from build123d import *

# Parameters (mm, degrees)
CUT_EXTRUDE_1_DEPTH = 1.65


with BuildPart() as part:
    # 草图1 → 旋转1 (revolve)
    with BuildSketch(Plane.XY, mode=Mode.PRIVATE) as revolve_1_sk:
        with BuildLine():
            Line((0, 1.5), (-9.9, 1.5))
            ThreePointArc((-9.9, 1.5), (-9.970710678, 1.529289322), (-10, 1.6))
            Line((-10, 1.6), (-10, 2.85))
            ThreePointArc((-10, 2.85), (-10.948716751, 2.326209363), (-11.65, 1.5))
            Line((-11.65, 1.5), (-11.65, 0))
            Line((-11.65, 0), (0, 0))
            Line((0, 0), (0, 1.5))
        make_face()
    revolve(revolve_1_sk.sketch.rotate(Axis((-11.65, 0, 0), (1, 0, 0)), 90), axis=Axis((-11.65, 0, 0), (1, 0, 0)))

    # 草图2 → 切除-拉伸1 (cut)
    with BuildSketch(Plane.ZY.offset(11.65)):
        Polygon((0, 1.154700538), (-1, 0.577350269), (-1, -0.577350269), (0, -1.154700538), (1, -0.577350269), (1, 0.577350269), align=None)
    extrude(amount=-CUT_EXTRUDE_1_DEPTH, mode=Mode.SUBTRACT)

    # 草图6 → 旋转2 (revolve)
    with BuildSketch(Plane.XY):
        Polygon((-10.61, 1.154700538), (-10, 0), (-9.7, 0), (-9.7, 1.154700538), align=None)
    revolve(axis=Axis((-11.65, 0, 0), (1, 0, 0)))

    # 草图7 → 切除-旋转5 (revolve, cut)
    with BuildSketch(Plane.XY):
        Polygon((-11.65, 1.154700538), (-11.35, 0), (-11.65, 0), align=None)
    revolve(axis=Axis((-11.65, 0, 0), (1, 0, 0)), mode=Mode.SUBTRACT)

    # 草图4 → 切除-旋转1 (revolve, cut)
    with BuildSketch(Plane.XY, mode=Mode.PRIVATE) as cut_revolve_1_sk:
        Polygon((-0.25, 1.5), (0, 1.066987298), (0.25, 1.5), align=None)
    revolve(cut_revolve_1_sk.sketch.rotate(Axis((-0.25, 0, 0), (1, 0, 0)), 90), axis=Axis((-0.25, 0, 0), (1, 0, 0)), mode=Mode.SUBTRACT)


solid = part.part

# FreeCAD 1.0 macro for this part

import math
import FreeCAD as App
import Part
import Sketcher
Q = App.Units.Quantity

doc = App.newDocument("Part")
params = doc.addObject("Spreadsheet::Sheet", "Params")
for row, (alias, value) in enumerate([
    ("sketch1_radius", "0.1 mm"),
    ("sketch1_width", "9.9 mm"),
    ("sketch1_height", "1.5 mm"),
    ("sketch1_width2", "11.65 mm"),
    ("sketch1_height2", "1.25 mm"),
    ("revolution_angle", "360 deg"),
    ("pocket1_length", "1.65 mm"),
    ("sketch3_width", "0.3 mm"),
    ("sketch3_width2", "0.91 mm"),
    ("revolution2_angle", "360 deg"),
    ("sketch4_width", "0.3 mm"),
    ("groove_angle", "360 deg"),
    ("sketch5_width", "0.5 mm"),
    ("groove2_angle", "360 deg"),
], start=1):
    params.set(f"A{row}", alias)
    params.set(f"B{row}", "=" + value)
    params.setAlias(f"B{row}", alias)

body = doc.addObject("PartDesign::Body", "Body")

sketch1 = doc.addObject("Sketcher::SketchObject", "Sketch")
body.addObject(sketch1)
sketch1.AttachmentSupport = (doc.XY_Plane, [""])
sketch1.MapMode = "FlatFace"
sketch1.addGeometry([
    Part.LineSegment(App.Vector(0, 1.5, 0), App.Vector(-9.9, 1.5, 0)),
    Part.ArcOfCircle(Part.Circle(App.Vector(-9.9, 1.6, 0), App.Vector(0, 0, 1), 0.1), math.radians(180), math.radians(270)),
    Part.LineSegment(App.Vector(-10, 1.6, 0), App.Vector(-10, 2.85, 0)),
    Part.ArcOfCircle(Part.Circle(App.Vector(-9.05, 0, 0), App.Vector(0, 0, 1), 3.01), math.radians(109), math.radians(150)),
    Part.LineSegment(App.Vector(-11.65, 1.5, 0), App.Vector(-11.65, 0, 0)),
    Part.LineSegment(App.Vector(-11.65, 0, 0), App.Vector(0, 0, 0)),
    Part.LineSegment(App.Vector(0, 0, 0), App.Vector(0, 1.5, 0)),
], False)
sketch1.addConstraint([
    Sketcher.Constraint("Tangent", 0, 2, 1, 2),
    Sketcher.Constraint("Tangent", 1, 1, 2, 1),
    Sketcher.Constraint("Coincident", 2, 2, 3, 1),
    Sketcher.Constraint("Coincident", 3, 2, 4, 1),
    Sketcher.Constraint("Coincident", 4, 2, 5, 1),
    Sketcher.Constraint("Coincident", 5, 2, 6, 1),
    Sketcher.Constraint("Coincident", 6, 2, 0, 1),
    Sketcher.Constraint("Horizontal", 0),
    Sketcher.Constraint("Vertical", 2),
    Sketcher.Constraint("Vertical", 4),
    Sketcher.Constraint("Horizontal", 5),
    Sketcher.Constraint("Vertical", 6),
    Sketcher.Constraint("Coincident", 5, 2, -1, 1),
    Sketcher.Constraint("PointOnObject", 3, 3, -1),
    Sketcher.Constraint("Horizontal", 0, 2, 3, 2),
    Sketcher.Constraint("Radius", 1, Q("0.1 mm")),
    Sketcher.Constraint("DistanceX", 0, 2, 0, 1, Q("9.9 mm")),
    Sketcher.Constraint("DistanceY", 4, 2, 4, 1, Q("1.5 mm")),
    Sketcher.Constraint("DistanceX", 5, 1, 5, 2, Q("11.65 mm")),
    Sketcher.Constraint("DistanceY", 2, 1, 2, 2, Q("1.25 mm")),
])
sketch1.setExpression("Constraints[15]", "Params.sketch1_radius")
sketch1.setExpression("Constraints[16]", "Params.sketch1_width")
sketch1.setExpression("Constraints[17]", "Params.sketch1_height")
sketch1.setExpression("Constraints[18]", "Params.sketch1_width2")
sketch1.setExpression("Constraints[19]", "Params.sketch1_height2")
revolution = doc.addObject("PartDesign::Revolution", "Revolution")
body.addObject(revolution)
revolution.Profile = sketch1
revolution.ReferenceAxis = (sketch1, ["H_Axis"])
revolution.setExpression("Angle", "Params.revolution_angle")

sketch2 = doc.addObject("Sketcher::SketchObject", "Sketch001")
body.addObject(sketch2)
sketch2.AttachmentSupport = (doc.YZ_Plane, [""])
sketch2.MapMode = "FlatFace"
sketch2.AttachmentOffset = App.Placement(App.Vector(0, 0, -11.65), App.Rotation())
sketch2.addGeometry([
    Part.LineSegment(App.Vector(1.2, 0, 0), App.Vector(0.6, -1, 0)),
    Part.LineSegment(App.Vector(0.6, -1, 0), App.Vector(-0.6, -1, 0)),
    Part.LineSegment(App.Vector(-0.6, -1, 0), App.Vector(-1.2, 0, 0)),
    Part.LineSegment(App.Vector(-1.2, 0, 0), App.Vector(-0.6, 1, 0)),
    Part.LineSegment(App.Vector(-0.6, 1, 0), App.Vector(0.6, 1, 0)),
    Part.LineSegment(App.Vector(0.6, 1, 0), App.Vector(1.2, 0, 0)),
], False)
sketch2.addConstraint([
    Sketcher.Constraint("Coincident", 0, 2, 1, 1),
    Sketcher.Constraint("Coincident", 1, 2, 2, 1),
    Sketcher.Constraint("Coincident", 2, 2, 3, 1),
    Sketcher.Constraint("Coincident", 3, 2, 4, 1),
    Sketcher.Constraint("Coincident", 4, 2, 5, 1),
    Sketcher.Constraint("Coincident", 5, 2, 0, 1),
    Sketcher.Constraint("Horizontal", 1),
    Sketcher.Constraint("Horizontal", 4),
    Sketcher.Constraint("Symmetric", 0, 2, 3, 2, -1, 1),
    Sketcher.Constraint("Symmetric", 2, 2, 5, 2, -1, 1),
    Sketcher.Constraint("PointOnObject", 2, 2, -1),
    Sketcher.Constraint("Parallel", 2, 5),
    Sketcher.Constraint("Vertical", 1, 2, 3, 2),
    Sketcher.Constraint("Angle", 0, Q("-120 deg")),
    Sketcher.Constraint("DistanceY", 0, 2, -1, 1, Q("1 mm")),
    Sketcher.Constraint("DistanceX", 1, 2, 1, 1, Q("1.154701 mm")),
])
pocket1 = doc.addObject("PartDesign::Pocket", "Pocket")
body.addObject(pocket1)
pocket1.Profile = sketch2
pocket1.setExpression("Length", "Params.pocket1_length")
pocket1.Reversed = True

sketch3 = doc.addObject("Sketcher::SketchObject", "Sketch002")
body.addObject(sketch3)
sketch3.AttachmentSupport = (doc.XY_Plane, [""])
sketch3.MapMode = "FlatFace"
sketch3.addGeometry([
    Part.LineSegment(App.Vector(-10.61, 1.15, 0), App.Vector(-10, 0, 0)),
    Part.LineSegment(App.Vector(-10, 0, 0), App.Vector(-9.7, 0, 0)),
    Part.LineSegment(App.Vector(-9.7, 0, 0), App.Vector(-9.7, 1.15, 0)),
    Part.LineSegment(App.Vector(-9.7, 1.15, 0), App.Vector(-10.61, 1.15, 0)),
], False)
sketch3.addConstraint([
    Sketcher.Constraint("Coincident", 0, 2, 1, 1),
    Sketcher.Constraint("Coincident", 1, 2, 2, 1),
    Sketcher.Constraint("Coincident", 2, 2, 3, 1),
    Sketcher.Constraint("Coincident", 3, 2, 0, 1),
    Sketcher.Constraint("Horizontal", 1),
    Sketcher.Constraint("Vertical", 2),
    Sketcher.Constraint("Horizontal", 3),
    Sketcher.Constraint("PointOnObject", 0, 2, -1),
    Sketcher.Constraint("DistanceX", 1, 1, 1, 2, Q("0.3 mm")),
    Sketcher.Constraint("DistanceX", 0, 2, -1, 1, Q("10 mm")),
    Sketcher.Constraint("DistanceX", 3, 2, 3, 1, Q("0.91 mm")),
    Sketcher.Constraint("DistanceY", 2, 1, 2, 2, Q("1.154701 mm")),
])
sketch3.setExpression("Constraints[8]", "Params.sketch3_width")
sketch3.setExpression("Constraints[10]", "Params.sketch3_width2")
revolution2 = doc.addObject("PartDesign::Revolution", "Revolution001")
body.addObject(revolution2)
revolution2.Profile = sketch3
revolution2.ReferenceAxis = (sketch3, ["H_Axis"])
revolution2.setExpression("Angle", "Params.revolution2_angle")

sketch4 = doc.addObject("Sketcher::SketchObject", "Sketch003")
body.addObject(sketch4)
sketch4.AttachmentSupport = (doc.XY_Plane, [""])
sketch4.MapMode = "FlatFace"
sketch4.addGeometry([
    Part.LineSegment(App.Vector(-11.35, 0, 0), App.Vector(-11.65, 1.15, 0)),
    Part.LineSegment(App.Vector(-11.65, 1.15, 0), App.Vector(-11.65, 0, 0)),
    Part.LineSegment(App.Vector(-11.65, 0, 0), App.Vector(-11.35, 0, 0)),
], False)
sketch4.addConstraint([
    Sketcher.Constraint("Coincident", 0, 2, 1, 1),
    Sketcher.Constraint("Coincident", 1, 2, 2, 1),
    Sketcher.Constraint("Coincident", 2, 2, 0, 1),
    Sketcher.Constraint("Vertical", 1),
    Sketcher.Constraint("Horizontal", 2),
    Sketcher.Constraint("PointOnObject", 1, 2, -1),
    Sketcher.Constraint("DistanceX", 2, 1, 2, 2, Q("0.3 mm")),
    Sketcher.Constraint("DistanceX", 0, 2, -1, 1, Q("11.65 mm")),
    Sketcher.Constraint("DistanceY", 1, 2, 1, 1, Q("1.154701 mm")),
])
sketch4.setExpression("Constraints[6]", "Params.sketch4_width")
groove = doc.addObject("PartDesign::Groove", "Groove")
body.addObject(groove)
groove.Profile = sketch4
groove.ReferenceAxis = (sketch4, ["H_Axis"])
groove.setExpression("Angle", "Params.groove_angle")

sketch5 = doc.addObject("Sketcher::SketchObject", "Sketch004")
body.addObject(sketch5)
sketch5.AttachmentSupport = (doc.XY_Plane, [""])
sketch5.MapMode = "FlatFace"
sketch5.addGeometry([
    Part.LineSegment(App.Vector(-0.2, 1.5, 0), App.Vector(0, 1.1, 0)),
    Part.LineSegment(App.Vector(0, 1.1, 0), App.Vector(0.2, 1.5, 0)),
    Part.LineSegment(App.Vector(0.2, 1.5, 0), App.Vector(-0.2, 1.5, 0)),
], False)
sketch5.addConstraint([
    Sketcher.Constraint("Coincident", 0, 2, 1, 1),
    Sketcher.Constraint("Coincident", 1, 2, 2, 1),
    Sketcher.Constraint("Coincident", 2, 2, 0, 1),
    Sketcher.Constraint("Horizontal", 2),
    Sketcher.Constraint("PointOnObject", 0, 2, -2),
    Sketcher.Constraint("Equal", 0, 1),
    Sketcher.Constraint("Angle", 0, Q("-60 deg")),
    Sketcher.Constraint("DistanceX", 2, 2, 2, 1, Q("0.5 mm")),
    Sketcher.Constraint("DistanceY", -1, 1, 1, 2, Q("1.5 mm")),
])
sketch5.setExpression("Constraints[7]", "Params.sketch5_width")
groove2 = doc.addObject("PartDesign::Groove", "Groove001")
body.addObject(groove2)
groove2.Profile = sketch5
groove2.ReferenceAxis = (sketch5, ["H_Axis"])
groove2.setExpression("Angle", "Params.groove2_angle")

doc.recompute()
